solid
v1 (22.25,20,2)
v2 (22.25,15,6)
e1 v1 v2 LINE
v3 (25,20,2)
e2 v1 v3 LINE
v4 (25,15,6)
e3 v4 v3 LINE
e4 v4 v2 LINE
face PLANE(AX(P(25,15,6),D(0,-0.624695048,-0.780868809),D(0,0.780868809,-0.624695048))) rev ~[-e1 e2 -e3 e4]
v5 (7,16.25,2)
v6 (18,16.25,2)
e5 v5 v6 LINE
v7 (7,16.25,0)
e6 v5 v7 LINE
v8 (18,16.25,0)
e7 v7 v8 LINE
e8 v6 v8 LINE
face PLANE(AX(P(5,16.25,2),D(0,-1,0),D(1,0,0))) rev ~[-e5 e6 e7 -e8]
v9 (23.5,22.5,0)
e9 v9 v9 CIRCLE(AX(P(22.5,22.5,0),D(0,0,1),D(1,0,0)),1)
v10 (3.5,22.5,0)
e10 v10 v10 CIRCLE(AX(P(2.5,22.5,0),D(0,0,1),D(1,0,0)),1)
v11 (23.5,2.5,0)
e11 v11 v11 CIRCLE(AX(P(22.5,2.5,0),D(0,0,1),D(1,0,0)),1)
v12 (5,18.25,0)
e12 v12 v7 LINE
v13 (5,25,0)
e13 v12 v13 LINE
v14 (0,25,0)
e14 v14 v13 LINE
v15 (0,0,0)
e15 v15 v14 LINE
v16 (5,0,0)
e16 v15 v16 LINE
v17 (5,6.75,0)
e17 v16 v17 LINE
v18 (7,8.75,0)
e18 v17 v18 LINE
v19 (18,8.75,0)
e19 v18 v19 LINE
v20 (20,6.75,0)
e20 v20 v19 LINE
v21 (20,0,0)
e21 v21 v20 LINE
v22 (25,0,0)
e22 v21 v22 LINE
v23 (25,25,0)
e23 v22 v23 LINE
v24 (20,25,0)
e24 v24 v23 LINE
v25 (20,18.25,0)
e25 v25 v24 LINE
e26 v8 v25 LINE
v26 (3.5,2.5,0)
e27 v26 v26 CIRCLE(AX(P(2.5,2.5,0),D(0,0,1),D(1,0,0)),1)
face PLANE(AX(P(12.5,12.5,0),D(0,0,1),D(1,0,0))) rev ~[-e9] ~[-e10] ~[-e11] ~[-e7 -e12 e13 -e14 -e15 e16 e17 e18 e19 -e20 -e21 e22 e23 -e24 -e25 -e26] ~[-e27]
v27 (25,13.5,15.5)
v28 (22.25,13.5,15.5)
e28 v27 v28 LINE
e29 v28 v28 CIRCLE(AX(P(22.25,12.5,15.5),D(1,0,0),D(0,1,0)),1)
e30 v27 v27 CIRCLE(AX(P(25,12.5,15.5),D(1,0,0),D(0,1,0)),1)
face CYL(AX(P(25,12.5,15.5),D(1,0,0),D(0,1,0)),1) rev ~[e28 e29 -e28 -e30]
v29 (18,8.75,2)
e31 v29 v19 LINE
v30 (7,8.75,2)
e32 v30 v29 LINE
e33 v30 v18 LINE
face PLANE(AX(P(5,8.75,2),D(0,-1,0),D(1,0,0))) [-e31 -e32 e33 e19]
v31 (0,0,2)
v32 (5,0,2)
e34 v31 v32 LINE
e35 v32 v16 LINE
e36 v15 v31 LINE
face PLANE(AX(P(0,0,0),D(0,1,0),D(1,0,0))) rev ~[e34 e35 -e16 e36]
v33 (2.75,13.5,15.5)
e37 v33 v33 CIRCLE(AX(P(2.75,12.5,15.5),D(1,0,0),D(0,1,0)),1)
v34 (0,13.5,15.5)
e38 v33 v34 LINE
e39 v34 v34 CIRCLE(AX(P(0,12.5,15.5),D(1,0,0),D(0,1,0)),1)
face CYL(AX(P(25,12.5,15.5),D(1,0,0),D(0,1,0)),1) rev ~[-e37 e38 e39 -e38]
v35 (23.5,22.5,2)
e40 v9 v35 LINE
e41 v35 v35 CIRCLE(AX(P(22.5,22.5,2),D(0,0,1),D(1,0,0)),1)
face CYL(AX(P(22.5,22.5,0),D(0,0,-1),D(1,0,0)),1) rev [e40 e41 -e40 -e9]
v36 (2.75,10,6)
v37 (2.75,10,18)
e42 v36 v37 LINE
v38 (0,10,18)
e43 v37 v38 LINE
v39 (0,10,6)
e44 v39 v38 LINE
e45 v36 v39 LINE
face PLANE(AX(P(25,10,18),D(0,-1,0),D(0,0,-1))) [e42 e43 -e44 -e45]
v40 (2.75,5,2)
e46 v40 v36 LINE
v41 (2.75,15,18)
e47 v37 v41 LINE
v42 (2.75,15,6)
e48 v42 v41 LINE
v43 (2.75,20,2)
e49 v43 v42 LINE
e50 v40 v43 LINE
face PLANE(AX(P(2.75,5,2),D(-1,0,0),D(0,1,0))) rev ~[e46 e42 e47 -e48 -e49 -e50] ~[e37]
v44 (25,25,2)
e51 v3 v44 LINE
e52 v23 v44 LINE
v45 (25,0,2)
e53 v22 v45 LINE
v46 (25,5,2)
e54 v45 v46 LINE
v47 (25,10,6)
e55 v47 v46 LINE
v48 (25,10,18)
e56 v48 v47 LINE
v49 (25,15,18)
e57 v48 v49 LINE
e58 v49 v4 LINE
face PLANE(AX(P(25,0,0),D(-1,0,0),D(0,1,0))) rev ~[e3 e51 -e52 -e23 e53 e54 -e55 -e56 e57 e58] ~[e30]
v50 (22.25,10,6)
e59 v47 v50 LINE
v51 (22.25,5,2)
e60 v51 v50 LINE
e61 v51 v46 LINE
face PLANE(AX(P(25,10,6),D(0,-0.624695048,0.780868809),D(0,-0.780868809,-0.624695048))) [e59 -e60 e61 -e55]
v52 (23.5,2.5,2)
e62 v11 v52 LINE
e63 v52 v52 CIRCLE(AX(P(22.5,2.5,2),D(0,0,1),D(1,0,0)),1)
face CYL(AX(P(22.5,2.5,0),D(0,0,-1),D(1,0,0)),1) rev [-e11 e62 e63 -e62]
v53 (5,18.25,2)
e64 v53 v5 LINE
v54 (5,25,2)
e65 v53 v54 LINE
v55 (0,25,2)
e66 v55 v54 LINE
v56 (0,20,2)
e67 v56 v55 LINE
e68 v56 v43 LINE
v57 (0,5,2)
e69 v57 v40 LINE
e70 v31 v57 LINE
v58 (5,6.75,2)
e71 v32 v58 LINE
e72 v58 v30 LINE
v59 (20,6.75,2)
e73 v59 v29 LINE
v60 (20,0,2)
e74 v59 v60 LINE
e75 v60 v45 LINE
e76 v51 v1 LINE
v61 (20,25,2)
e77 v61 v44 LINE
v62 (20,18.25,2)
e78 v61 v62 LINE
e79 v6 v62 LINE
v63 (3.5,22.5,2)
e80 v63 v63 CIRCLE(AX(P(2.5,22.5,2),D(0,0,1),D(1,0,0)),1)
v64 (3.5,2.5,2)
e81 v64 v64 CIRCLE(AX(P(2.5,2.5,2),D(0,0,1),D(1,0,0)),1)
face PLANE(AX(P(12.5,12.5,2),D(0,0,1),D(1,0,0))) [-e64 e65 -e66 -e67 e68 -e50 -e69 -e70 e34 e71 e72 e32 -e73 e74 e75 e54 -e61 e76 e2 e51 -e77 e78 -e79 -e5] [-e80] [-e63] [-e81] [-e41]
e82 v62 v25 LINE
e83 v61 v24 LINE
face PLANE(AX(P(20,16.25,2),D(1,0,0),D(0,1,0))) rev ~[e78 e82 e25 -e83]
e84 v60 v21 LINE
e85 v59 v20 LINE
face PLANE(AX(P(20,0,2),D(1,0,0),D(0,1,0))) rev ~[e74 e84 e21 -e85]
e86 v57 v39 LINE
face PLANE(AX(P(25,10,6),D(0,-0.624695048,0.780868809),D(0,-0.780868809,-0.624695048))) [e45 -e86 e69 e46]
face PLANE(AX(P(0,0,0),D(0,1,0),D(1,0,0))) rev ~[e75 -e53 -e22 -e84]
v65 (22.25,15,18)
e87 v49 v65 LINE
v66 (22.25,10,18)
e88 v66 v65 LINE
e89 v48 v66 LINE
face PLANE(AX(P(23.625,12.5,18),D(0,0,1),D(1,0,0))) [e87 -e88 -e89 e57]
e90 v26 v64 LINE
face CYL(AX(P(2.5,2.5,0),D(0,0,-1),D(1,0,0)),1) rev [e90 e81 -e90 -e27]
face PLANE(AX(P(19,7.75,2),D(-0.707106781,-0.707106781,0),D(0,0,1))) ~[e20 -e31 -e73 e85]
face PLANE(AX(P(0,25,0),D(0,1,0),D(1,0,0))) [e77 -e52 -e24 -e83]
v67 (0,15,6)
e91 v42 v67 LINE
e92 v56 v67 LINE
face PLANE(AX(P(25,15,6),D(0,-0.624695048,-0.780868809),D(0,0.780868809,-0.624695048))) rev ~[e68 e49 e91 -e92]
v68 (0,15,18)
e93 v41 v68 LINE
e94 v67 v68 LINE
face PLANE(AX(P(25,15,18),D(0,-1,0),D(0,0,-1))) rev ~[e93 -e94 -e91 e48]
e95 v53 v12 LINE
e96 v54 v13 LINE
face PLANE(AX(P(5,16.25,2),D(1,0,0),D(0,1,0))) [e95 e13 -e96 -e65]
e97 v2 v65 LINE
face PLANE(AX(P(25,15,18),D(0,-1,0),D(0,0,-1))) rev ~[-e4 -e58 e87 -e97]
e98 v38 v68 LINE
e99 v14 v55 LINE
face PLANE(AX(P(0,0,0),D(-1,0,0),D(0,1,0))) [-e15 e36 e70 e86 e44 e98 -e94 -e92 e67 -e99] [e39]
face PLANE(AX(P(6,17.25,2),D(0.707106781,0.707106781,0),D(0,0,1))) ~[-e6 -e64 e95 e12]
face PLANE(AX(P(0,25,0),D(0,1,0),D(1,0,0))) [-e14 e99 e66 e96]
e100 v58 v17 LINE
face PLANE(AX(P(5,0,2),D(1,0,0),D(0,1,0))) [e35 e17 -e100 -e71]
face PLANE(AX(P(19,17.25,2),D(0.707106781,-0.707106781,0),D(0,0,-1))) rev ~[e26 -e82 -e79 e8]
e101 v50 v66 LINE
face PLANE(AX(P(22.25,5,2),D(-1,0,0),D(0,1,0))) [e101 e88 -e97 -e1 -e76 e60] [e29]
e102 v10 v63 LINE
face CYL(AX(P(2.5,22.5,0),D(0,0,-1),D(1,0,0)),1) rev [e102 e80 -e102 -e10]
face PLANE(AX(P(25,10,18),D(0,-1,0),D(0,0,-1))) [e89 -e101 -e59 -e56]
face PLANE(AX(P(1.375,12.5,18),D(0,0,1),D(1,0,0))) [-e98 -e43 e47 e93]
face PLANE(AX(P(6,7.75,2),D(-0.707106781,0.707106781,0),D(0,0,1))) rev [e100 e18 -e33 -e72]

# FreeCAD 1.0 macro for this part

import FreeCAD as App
import Part
import Sketcher
from FreeCAD import Vector


def edges_at(feature, points):
    """Names of the edges that pass closest to the given points."""
    edges = feature.Shape.Edges
    near = lambda p: min(range(len(edges)), key=lambda i: edges[i].distToShape(Part.Vertex(*p))[0])
    return sorted({f"Edge{near(p) + 1}" for p in points})


def add_polygon(sketch, points):
    """Adds a closed chain of lines whose ends are joined by coincident constraints."""
    first, n = sketch.GeometryCount, len(points)
    for a, b in zip(points, points[1:] + points[:1]):
        sketch.addGeometry(Part.LineSegment(App.Vector(*a, 0), App.Vector(*b, 0)), False)
    for i in range(n):
        sketch.addConstraint(Sketcher.Constraint("Coincident", first + i, 2, first + (i + 1) % n, 1))

doc = App.newDocument("Part")
params = doc.addObject("Spreadsheet::Sheet", "Params")
for row, (alias, value) in enumerate([
    ("sketch1_diameter", "2 mm"),
    ("sketch1_width", "25 mm"),
    ("pad1_length", "2 mm"),
    ("sketch2_height", "15 mm"),
    ("sketch2_width", "2.75 mm"),
    ("pad2_length", "16 mm"),
    ("sketch3_width", "15 mm"),
    ("sketch3_height", "8.75 mm"),
    ("pocket1_length", "100 mm"),
    ("chamfer_size", "2 mm"),
    ("sketch4_diameter", "2 mm"),
    ("pocket2_length", "100 mm"),
    ("sketch5_width", "5 mm"),
    ("sketch5_height", "12 mm"),
    ("sketch5_height2", "16 mm"),
    ("pocket3_length", "100 mm"),
], start=1):
    params.set(f"A{row}", alias)
    params.set(f"B{row}", "=" + value)
    params.setAlias(f"B{row}", alias)

body = doc.addObject("PartDesign::Body", "Body")

# Sketch on XY plane
sketch1 = doc.addObject("Sketcher::SketchObject", "Sketch")
body.addObject(sketch1)
sketch1.AttachmentSupport = (doc.XY_Plane, [""])
sketch1.MapMode = "FlatFace"
add_polygon(sketch1, [(0, 25), (0, 0), (25, 0), (25, 25)])  # lines 0-3
sketch1.addGeometry(Part.Circle(Vector(2.5, 2.5, 0), Vector(0, 0, 1), 1), False)  # 4
sketch1.addGeometry(Part.Circle(Vector(22.5, 2.5, 0), Vector(0, 0, 1), 1), False)  # 5
sketch1.addGeometry(Part.Circle(Vector(2.5, 22.5, 0), Vector(0, 0, 1), 1), False)  # 6
sketch1.addGeometry(Part.Circle(Vector(22.5, 22.5, 0), Vector(0, 0, 1), 1), False)  # 7
sketch1.addConstraint([
    Sketcher.Constraint("Vertical", 0),
    Sketcher.Constraint("Horizontal", 1),
    Sketcher.Constraint("Vertical", 2),
    Sketcher.Constraint("Horizontal", 3),
    Sketcher.Constraint("Coincident", 0, 2, -1, 1),
    Sketcher.Constraint("Equal", 4, 5),
    Sketcher.Constraint("Equal", 5, 6),
    Sketcher.Constraint("Equal", 6, 7),
    Sketcher.Constraint("Horizontal", 4, 3, 5, 3),
    Sketcher.Constraint("Horizontal", 6, 3, 7, 3),
    Sketcher.Constraint("Vertical", 4, 3, 6, 3),
    Sketcher.Constraint("Vertical", 5, 3, 7, 3),
    Sketcher.Constraint("Equal", 3, 0),
    Sketcher.Constraint("Diameter", 4, 2.0),
    Sketcher.Constraint("DistanceX", 1, 1, 1, 2, 25.0),
    Sketcher.Constraint("DistanceX", 4, 3, 5, 3, 20.0),
    Sketcher.Constraint("DistanceY", 4, 3, 6, 3, 20.0),
    Sketcher.Constraint("DistanceX", -1, 1, 4, 3, 2.5),
    Sketcher.Constraint("DistanceY", -1, 1, 4, 3, 2.5),
])
sketch1.setExpression("Constraints[17]", "Params.sketch1_diameter")
sketch1.setExpression("Constraints[18]", "Params.sketch1_width")
pad1 = doc.addObject("PartDesign::Pad", "Pad")
body.addObject(pad1)
pad1.Profile = sketch1
pad1.setExpression("Length", "Params.pad1_length")

# Sketch on XY plane
sketch2 = doc.addObject("Sketcher::SketchObject", "Sketch001")
body.addObject(sketch2)
sketch2.AttachmentSupport = (doc.XY_Plane, [""])
sketch2.MapMode = "FlatFace"
sketch2.AttachmentOffset = App.Placement(Vector(0, 0, 2), App.Rotation())
add_polygon(sketch2, [(0, 20), (0, 5), (2.8, 5), (2.8, 20)])  # lines 0-3
add_polygon(sketch2, [(22.2, 20), (22.2, 5), (25, 5), (25, 20)])  # lines 4-7
sketch2.addConstraint([
    Sketcher.Constraint("Vertical", 0),
    Sketcher.Constraint("Horizontal", 1),
    Sketcher.Constraint("Vertical", 2),
    Sketcher.Constraint("Horizontal", 3),
    Sketcher.Constraint("Vertical", 4),
    Sketcher.Constraint("Horizontal", 5),
    Sketcher.Constraint("Vertical", 6),
    Sketcher.Constraint("Horizontal", 7),
    Sketcher.Constraint("PointOnObject", 0, 2, -2),
    Sketcher.Constraint("Horizontal", 1, 2, 4, 2),
    Sketcher.Constraint("Horizontal", 3, 2, 6, 2),
    Sketcher.Constraint("Equal", 3, 5),
    Sketcher.Constraint("DistanceY", 0, 2, 0, 1, 15.0),
    Sketcher.Constraint("DistanceY", -1, 1, 0, 2, 5.0),
    Sketcher.Constraint("DistanceX", -1, 1, 5, 2, 25.0),
    Sketcher.Constraint("DistanceX", 1, 1, 1, 2, 2.75),
])
sketch2.setExpression("Constraints[20]", "Params.sketch2_height")
sketch2.setExpression("Constraints[23]", "Params.sketch2_width")
pad2 = doc.addObject("PartDesign::Pad", "Pad001")
body.addObject(pad2)
pad2.Profile = sketch2
pad2.setExpression("Length", "Params.pad2_length")

# Sketch on XY plane
sketch3 = doc.addObject("Sketcher::SketchObject", "Sketch002")
body.addObject(sketch3)
sketch3.AttachmentSupport = (doc.XY_Plane, [""])
sketch3.MapMode = "FlatFace"
sketch3.AttachmentOffset = App.Placement(Vector(0, 0, 2), App.Rotation())
add_polygon(sketch3, [(5, 25), (5, 16), (20, 16), (20, 25)])  # lines 0-3
add_polygon(sketch3, [(5, 9), (5, 0), (20, 0), (20, 9)])  # lines 4-7
sketch3.addConstraint([
    Sketcher.Constraint("Vertical", 0),
    Sketcher.Constraint("Horizontal", 1),
    Sketcher.Constraint("Vertical", 2),
    Sketcher.Constraint("Horizontal", 3),
    Sketcher.Constraint("Vertical", 4),
    Sketcher.Constraint("Horizontal", 5),
    Sketcher.Constraint("Vertical", 6),
    Sketcher.Constraint("Horizontal", 7),
    Sketcher.Constraint("PointOnObject", 4, 2, -1),
    Sketcher.Constraint("Vertical", 3, 2, 4, 2),
    Sketcher.Constraint("Vertical", 2, 2, 5, 2),
    Sketcher.Constraint("Equal", 2, 4),
    Sketcher.Constraint("DistanceX", 1, 1, 1, 2, 15.0),
    Sketcher.Constraint("DistanceX", -1, 1, 0, 2, 5.0),
    Sketcher.Constraint("DistanceY", -1, 1, 2, 2, 25.0),
    Sketcher.Constraint("DistanceY", 0, 2, 0, 1, 8.75),
])
sketch3.setExpression("Constraints[20]", "Params.sketch3_width")
sketch3.setExpression("Constraints[23]", "Params.sketch3_height")
pocket1 = doc.addObject("PartDesign::Pocket", "Pocket")
body.addObject(pocket1)
pocket1.Profile = sketch3
pocket1.setExpression("Length", "Params.pocket1_length")
doc.recompute()

chamfer = doc.addObject("PartDesign::Chamfer", "Chamfer")
body.addObject(chamfer)
chamfer.Base = (pocket1, edges_at(pocket1, [
    (20, 16.25, 1),
    (5, 16.25, 1),
    (5, 8.75, 1),
    (20, 8.75, 1),
]))
chamfer.setExpression("Size", "Params.chamfer_size")

# Sketch on YZ plane
sketch4 = doc.addObject("Sketcher::SketchObject", "Sketch003")
body.addObject(sketch4)
sketch4.AttachmentSupport = (doc.YZ_Plane, [""])
sketch4.MapMode = "FlatFace"
sketch4.AttachmentOffset = App.Placement(Vector(0, 0, 25), App.Rotation())
sketch4.addGeometry(Part.Circle(Vector(12.5, 15.5, 0), Vector(0, 0, 1), 1), False)
sketch4.addConstraint([
    Sketcher.Constraint("Diameter", 0, 2.0),
    Sketcher.Constraint("DistanceX", -1, 1, 0, 3, 12.5),
    Sketcher.Constraint("DistanceY", -1, 1, 0, 3, 15.5),
])
sketch4.setExpression("Constraints[0]", "Params.sketch4_diameter")
pocket2 = doc.addObject("PartDesign::Pocket", "Pocket001")
body.addObject(pocket2)
pocket2.Profile = sketch4
pocket2.setExpression("Length", "Params.pocket2_length")

# Sketch on YZ plane
sketch5 = doc.addObject("Sketcher::SketchObject", "Sketch004")
body.addObject(sketch5)
sketch5.AttachmentSupport = (doc.YZ_Plane, [""])
sketch5.MapMode = "FlatFace"
sketch5.AttachmentOffset = App.Placement(Vector(0, 0, 25), App.Rotation())
add_polygon(sketch5, [(10, 6), (10, 18), (5, 18), (5, 2)])  # lines 0-3
add_polygon(sketch5, [(15, 18), (15, 6), (20, 2), (20, 18)])  # lines 4-7
sketch5.addConstraint([
    Sketcher.Constraint("Vertical", 0),
    Sketcher.Constraint("Horizontal", 1),
    Sketcher.Constraint("Vertical", 2),
    Sketcher.Constraint("Vertical", 4),
    Sketcher.Constraint("Vertical", 6),
    Sketcher.Constraint("Horizontal", 7),
    Sketcher.Constraint("Horizontal", 3, 2, 4, 2),
    Sketcher.Constraint("Horizontal", 2, 2, 5, 2),
    Sketcher.Constraint("Horizontal", 1, 2, 6, 2),
    Sketcher.Constraint("Equal", 1, 7),
    Sketcher.Constraint("DistanceX", 1, 2, 1, 1, 5.0),
    Sketcher.Constraint("DistanceY", 0, 1, 0, 2, 12.0),
    Sketcher.Constraint("DistanceY", 2, 2, 2, 1, 16.0),
    Sketcher.Constraint("DistanceX", -1, 1, 0, 2, 10.0),
    Sketcher.Constraint("DistanceY", -1, 1, 0, 2, 18.0),
    Sketcher.Constraint("DistanceX", -1, 1, 4, 2, 15.0),
])
sketch5.setExpression("Constraints[18]", "Params.sketch5_width")
sketch5.setExpression("Constraints[19]", "Params.sketch5_height")
sketch5.setExpression("Constraints[20]", "Params.sketch5_height2")
pocket3 = doc.addObject("PartDesign::Pocket", "Pocket002")
body.addObject(pocket3)
pocket3.Profile = sketch5
pocket3.setExpression("Length", "Params.pocket3_length")

doc.recompute()
